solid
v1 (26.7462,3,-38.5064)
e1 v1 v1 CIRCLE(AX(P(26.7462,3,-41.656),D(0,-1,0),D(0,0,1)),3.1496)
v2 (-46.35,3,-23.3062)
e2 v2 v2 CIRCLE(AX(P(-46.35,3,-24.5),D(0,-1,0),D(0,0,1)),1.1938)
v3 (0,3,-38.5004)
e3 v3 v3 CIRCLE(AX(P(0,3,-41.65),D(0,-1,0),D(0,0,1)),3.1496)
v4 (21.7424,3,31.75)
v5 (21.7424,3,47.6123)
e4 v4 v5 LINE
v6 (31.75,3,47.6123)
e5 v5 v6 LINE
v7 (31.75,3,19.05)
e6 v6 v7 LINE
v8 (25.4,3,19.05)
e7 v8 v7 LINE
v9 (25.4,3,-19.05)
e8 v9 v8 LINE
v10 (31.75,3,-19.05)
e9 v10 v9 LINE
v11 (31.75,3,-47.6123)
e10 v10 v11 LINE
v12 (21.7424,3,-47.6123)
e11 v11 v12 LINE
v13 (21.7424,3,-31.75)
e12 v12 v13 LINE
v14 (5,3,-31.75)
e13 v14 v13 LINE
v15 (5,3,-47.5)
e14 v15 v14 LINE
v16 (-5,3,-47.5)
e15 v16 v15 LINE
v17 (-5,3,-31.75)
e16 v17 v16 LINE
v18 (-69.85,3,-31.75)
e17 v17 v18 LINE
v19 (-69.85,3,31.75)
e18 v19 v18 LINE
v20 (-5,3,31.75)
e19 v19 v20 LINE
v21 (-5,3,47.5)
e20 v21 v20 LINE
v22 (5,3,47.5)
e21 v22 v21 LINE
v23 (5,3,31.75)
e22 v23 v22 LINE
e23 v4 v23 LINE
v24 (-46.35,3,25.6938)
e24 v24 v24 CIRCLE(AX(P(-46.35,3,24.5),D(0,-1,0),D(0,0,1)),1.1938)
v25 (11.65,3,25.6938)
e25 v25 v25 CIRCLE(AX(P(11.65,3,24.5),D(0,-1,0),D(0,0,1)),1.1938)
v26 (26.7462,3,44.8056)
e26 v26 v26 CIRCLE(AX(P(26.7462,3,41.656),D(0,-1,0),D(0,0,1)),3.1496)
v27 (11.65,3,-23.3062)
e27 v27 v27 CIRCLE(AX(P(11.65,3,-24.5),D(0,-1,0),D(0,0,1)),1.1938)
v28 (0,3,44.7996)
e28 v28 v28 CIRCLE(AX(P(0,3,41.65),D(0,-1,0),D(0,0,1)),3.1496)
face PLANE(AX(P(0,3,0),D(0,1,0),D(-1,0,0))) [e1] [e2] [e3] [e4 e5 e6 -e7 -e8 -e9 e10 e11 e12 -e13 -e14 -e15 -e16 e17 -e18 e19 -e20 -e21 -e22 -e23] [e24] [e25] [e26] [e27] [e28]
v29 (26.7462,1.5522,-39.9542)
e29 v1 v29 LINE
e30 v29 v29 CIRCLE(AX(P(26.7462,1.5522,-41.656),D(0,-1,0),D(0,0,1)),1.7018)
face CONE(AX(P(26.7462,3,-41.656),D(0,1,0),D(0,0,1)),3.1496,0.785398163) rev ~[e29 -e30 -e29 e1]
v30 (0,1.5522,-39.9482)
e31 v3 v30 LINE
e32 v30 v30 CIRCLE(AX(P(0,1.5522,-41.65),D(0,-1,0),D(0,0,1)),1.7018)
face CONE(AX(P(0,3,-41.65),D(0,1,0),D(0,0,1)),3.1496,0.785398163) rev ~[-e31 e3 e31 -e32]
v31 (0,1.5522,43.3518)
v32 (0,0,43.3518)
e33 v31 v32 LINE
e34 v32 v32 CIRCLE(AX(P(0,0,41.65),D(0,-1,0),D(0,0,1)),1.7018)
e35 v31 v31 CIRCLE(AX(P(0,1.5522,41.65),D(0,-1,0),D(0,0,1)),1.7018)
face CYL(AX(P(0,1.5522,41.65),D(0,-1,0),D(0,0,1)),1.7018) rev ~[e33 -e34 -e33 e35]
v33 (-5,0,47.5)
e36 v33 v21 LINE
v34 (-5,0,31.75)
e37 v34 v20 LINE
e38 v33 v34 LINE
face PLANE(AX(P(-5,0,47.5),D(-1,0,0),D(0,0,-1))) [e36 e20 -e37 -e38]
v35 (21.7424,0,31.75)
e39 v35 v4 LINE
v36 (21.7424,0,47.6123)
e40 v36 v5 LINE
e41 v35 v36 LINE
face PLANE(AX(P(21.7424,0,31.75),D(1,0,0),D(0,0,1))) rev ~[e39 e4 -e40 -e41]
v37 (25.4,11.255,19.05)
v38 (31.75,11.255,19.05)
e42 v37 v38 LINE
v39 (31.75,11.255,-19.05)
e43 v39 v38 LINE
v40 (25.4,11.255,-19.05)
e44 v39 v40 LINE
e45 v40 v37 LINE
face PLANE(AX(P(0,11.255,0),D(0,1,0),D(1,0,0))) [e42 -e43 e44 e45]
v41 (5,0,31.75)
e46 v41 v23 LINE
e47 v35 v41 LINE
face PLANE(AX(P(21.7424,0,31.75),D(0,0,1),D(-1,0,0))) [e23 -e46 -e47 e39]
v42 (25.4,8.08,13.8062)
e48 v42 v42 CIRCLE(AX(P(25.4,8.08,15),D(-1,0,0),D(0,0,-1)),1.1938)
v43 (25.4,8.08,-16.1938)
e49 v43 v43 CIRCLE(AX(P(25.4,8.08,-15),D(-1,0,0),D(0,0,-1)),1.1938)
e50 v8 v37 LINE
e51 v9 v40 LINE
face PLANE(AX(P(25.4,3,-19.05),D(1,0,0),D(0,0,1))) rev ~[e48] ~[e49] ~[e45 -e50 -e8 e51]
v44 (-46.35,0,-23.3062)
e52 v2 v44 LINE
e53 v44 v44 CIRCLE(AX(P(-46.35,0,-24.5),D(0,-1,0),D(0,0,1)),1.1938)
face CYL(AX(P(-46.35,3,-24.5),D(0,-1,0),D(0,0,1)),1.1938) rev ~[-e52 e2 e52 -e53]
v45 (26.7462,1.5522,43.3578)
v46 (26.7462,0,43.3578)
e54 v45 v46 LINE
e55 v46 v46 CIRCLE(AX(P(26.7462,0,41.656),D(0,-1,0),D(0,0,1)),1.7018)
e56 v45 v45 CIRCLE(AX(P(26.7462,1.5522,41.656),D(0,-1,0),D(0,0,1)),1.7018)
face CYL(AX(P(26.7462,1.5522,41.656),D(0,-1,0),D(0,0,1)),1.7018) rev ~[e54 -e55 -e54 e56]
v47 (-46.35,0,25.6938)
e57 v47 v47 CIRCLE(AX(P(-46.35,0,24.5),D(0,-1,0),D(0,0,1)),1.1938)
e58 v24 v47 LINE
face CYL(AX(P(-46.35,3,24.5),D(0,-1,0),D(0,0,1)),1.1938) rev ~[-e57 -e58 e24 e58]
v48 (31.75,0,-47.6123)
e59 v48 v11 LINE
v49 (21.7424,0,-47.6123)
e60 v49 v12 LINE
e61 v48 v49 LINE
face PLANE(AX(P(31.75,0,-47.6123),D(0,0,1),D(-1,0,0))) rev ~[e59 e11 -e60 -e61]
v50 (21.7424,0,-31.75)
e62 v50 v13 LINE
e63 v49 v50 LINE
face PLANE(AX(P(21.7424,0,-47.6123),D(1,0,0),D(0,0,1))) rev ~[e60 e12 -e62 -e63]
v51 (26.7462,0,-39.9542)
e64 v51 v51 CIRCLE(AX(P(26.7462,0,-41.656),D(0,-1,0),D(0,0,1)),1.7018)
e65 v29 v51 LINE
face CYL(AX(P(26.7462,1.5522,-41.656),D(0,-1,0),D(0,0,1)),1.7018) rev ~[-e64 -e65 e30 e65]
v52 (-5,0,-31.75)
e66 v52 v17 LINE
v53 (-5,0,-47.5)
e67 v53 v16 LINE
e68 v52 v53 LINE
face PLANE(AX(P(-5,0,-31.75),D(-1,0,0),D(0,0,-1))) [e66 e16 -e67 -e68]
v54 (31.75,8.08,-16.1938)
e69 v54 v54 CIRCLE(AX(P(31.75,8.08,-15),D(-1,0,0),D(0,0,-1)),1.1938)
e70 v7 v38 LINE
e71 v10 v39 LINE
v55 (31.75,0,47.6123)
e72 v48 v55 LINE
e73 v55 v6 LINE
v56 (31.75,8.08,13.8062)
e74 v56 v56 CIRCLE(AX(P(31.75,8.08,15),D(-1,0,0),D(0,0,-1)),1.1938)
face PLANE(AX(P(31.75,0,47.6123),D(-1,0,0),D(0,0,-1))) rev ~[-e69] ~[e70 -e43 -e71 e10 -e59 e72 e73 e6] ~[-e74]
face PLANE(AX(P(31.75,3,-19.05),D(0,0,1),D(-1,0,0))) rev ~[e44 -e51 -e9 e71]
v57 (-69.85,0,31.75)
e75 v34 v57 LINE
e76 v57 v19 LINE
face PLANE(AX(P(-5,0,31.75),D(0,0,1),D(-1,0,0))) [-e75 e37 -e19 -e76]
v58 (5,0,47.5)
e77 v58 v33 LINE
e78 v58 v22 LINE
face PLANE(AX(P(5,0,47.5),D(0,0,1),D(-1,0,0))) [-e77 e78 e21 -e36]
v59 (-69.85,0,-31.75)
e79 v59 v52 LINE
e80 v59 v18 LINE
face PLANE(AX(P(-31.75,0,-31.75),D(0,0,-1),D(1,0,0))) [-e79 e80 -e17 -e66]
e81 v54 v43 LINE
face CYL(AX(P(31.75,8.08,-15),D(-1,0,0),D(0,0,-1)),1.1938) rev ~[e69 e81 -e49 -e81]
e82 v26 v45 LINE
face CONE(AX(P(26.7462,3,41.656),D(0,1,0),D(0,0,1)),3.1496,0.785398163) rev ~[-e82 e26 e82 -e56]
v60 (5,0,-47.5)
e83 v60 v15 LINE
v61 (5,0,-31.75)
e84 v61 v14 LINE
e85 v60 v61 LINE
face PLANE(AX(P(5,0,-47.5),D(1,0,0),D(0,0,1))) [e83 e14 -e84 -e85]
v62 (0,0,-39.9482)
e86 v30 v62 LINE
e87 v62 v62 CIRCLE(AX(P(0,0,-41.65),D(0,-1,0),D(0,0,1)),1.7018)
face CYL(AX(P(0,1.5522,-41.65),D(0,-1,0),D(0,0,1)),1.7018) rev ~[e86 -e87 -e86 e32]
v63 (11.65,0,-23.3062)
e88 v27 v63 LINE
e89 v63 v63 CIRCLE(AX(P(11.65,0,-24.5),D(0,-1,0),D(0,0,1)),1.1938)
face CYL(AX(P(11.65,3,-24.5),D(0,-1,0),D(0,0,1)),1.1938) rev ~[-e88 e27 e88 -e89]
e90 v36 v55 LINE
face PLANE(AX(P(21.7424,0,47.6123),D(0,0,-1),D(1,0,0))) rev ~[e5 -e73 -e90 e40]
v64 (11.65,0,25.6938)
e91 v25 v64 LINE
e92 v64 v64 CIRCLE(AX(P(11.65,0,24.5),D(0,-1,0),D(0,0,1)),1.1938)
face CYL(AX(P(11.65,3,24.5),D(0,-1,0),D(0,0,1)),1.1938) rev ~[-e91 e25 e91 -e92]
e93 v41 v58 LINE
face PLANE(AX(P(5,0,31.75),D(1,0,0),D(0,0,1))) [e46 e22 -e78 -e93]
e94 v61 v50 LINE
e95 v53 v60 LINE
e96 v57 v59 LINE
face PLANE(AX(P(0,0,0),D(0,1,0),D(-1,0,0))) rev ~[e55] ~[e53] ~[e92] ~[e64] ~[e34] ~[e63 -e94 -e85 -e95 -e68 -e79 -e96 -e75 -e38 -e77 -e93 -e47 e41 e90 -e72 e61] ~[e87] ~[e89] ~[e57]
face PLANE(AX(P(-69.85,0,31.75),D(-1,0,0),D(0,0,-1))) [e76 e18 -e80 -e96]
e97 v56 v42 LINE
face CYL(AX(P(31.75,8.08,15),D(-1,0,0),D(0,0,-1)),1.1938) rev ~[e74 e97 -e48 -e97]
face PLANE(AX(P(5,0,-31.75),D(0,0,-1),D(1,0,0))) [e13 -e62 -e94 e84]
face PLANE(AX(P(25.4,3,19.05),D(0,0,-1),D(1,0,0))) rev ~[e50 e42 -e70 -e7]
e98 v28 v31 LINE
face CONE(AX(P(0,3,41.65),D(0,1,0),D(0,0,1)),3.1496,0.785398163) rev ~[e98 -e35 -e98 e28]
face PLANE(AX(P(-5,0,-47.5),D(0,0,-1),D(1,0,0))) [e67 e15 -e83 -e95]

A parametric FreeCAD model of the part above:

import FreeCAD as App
import Part
import Sketcher
Q = App.Units.Quantity

doc = App.newDocument("Part")
params = doc.addObject("Spreadsheet::Sheet", "Params")
for row, (alias, value) in enumerate([
    ("sketch1_height", "2.5 in"),
    ("sketch1_height2", "3.749 in"),
    ("sketch1_width", "0.394 in"),
    ("pad1_length", "0.1181102 in"),
    ("sketch2_diameter", "0.134 in"),
    ("hole_diameter", "0.134 in"),
    ("hole_csink_diameter", "0.248 in"),
    ("sketch3_height", "1.5 in"),
    ("sketch3_width", "0.25 in"),
    ("pad2_length", "0.325 in"),
    ("sketch4_diameter", "0.094 in"),
    ("hole2_diameter", "0.094 in"),
    ("sketch5_diameter", "0.094 in"),
    ("hole3_diameter", "0.094 in"),
], start=1):
    params.set(f"A{row}", alias)
    params.set(f"B{row}", "=" + value)
    params.setAlias(f"B{row}", alias)

body = doc.addObject("PartDesign::Body", "Body")

sketch1 = body.newObject("Sketcher::SketchObject", "Sketch")
sketch1.AttachmentSupport = (doc.getObject("XZ_Plane"), [""])
sketch1.MapMode = "FlatFace"
sketch1.addGeometry([
    Part.LineSegment(App.Vector(-5, 47.5, 0), App.Vector(5, 47.5, 0)),
    Part.LineSegment(App.Vector(5, 47.5, 0), App.Vector(5, 31.75, 0)),
    Part.LineSegment(App.Vector(5, 31.75, 0), App.Vector(21.7424, 31.75, 0)),
    Part.LineSegment(App.Vector(21.7424, 31.75, 0), App.Vector(21.7424, 47.6123, 0)),
    Part.LineSegment(App.Vector(21.7424, 47.6123, 0), App.Vector(31.75, 47.6123, 0)),
    Part.LineSegment(App.Vector(31.75, 47.6123, 0), App.Vector(31.75, -47.6123, 0)),
    Part.LineSegment(App.Vector(31.75, -47.6123, 0), App.Vector(21.7424, -47.6123, 0)),
    Part.LineSegment(App.Vector(21.7424, -47.6123, 0), App.Vector(21.7424, -31.75, 0)),
    Part.LineSegment(App.Vector(21.7424, -31.75, 0), App.Vector(5, -31.75, 0)),
    Part.LineSegment(App.Vector(5, -31.75, 0), App.Vector(5, -47.5, 0)),
    Part.LineSegment(App.Vector(5, -47.5, 0), App.Vector(-5, -47.5, 0)),
    Part.LineSegment(App.Vector(-5, -47.5, 0), App.Vector(-5, -31.75, 0)),
    Part.LineSegment(App.Vector(-5, -31.75, 0), App.Vector(-69.85, -31.75, 0)),
    Part.LineSegment(App.Vector(-69.85, -31.75, 0), App.Vector(-69.85, 31.75, 0)),
    Part.LineSegment(App.Vector(-69.85, 31.75, 0), App.Vector(-5, 31.75, 0)),
    Part.LineSegment(App.Vector(-5, 31.75, 0), App.Vector(-5, 47.5, 0)),
], False)
sketch1.addConstraint([
    Sketcher.Constraint("Coincident", 0, 2, 1, 1),
    Sketcher.Constraint("Coincident", 1, 2, 2, 1),
    Sketcher.Constraint("Coincident", 2, 2, 3, 1),
    Sketcher.Constraint("Coincident", 3, 2, 4, 1),
    Sketcher.Constraint("Coincident", 4, 2, 5, 1),
    Sketcher.Constraint("Coincident", 5, 2, 6, 1),
    Sketcher.Constraint("Coincident", 6, 2, 7, 1),
    Sketcher.Constraint("Coincident", 7, 2, 8, 1),
    Sketcher.Constraint("Coincident", 8, 2, 9, 1),
    Sketcher.Constraint("Coincident", 9, 2, 10, 1),
    Sketcher.Constraint("Coincident", 10, 2, 11, 1),
    Sketcher.Constraint("Coincident", 11, 2, 12, 1),
    Sketcher.Constraint("Coincident", 12, 2, 13, 1),
    Sketcher.Constraint("Coincident", 13, 2, 14, 1),
    Sketcher.Constraint("Coincident", 14, 2, 15, 1),
    Sketcher.Constraint("Coincident", 15, 2, 0, 1),
    Sketcher.Constraint("Horizontal", 0),
    Sketcher.Constraint("Vertical", 1),
    Sketcher.Constraint("Horizontal", 2),
    Sketcher.Constraint("Vertical", 3),
    Sketcher.Constraint("Horizontal", 4),
    Sketcher.Constraint("Vertical", 5),
    Sketcher.Constraint("Horizontal", 6),
    Sketcher.Constraint("Vertical", 7),
    Sketcher.Constraint("Horizontal", 8),
    Sketcher.Constraint("Vertical", 9),
    Sketcher.Constraint("Horizontal", 10),
    Sketcher.Constraint("Vertical", 11),
    Sketcher.Constraint("Horizontal", 12),
    Sketcher.Constraint("Vertical", 13),
    Sketcher.Constraint("Horizontal", 14),
    Sketcher.Constraint("Vertical", 15),
    Sketcher.Constraint("Symmetric", 0, 2, 10, 2, -1, 1),
    Sketcher.Constraint("Symmetric", 8, 2, 14, 2, -1, 1),
    Sketcher.Constraint("Symmetric", 8, 2, 11, 2, -2),
    Sketcher.Constraint("Symmetric", 3, 2, 6, 2, -1),
    Sketcher.Constraint("Horizontal", 2, 2, 13, 2),
    Sketcher.Constraint("DistanceY", 13, 1, 13, 2, Q("2.5 in")),
    Sketcher.Constraint("DistanceY", 5, 2, 5, 1, Q("3.749 in")),
    Sketcher.Constraint("DistanceX", 0, 1, 0, 2, Q("0.3937 in")),
    Sketcher.Constraint("DistanceX", 4, 1, 4, 2, Q("0.394 in")),
    Sketcher.Constraint("DistanceX", -1, 1, 4, 2, Q("1.25 in")),
    Sketcher.Constraint("DistanceX", 12, 2, -1, 1, Q("2.75 in")),
    Sketcher.Constraint("DistanceY", 1, 2, 1, 1, Q("15.75 mm")),
])
sketch1.setExpression("Constraints[37]", "Params.sketch1_height")
sketch1.setExpression("Constraints[38]", "Params.sketch1_height2")
sketch1.setExpression("Constraints[40]", "Params.sketch1_width")
pad1 = body.newObject("PartDesign::Pad", "Pad")
pad1.Profile = sketch1
pad1.setExpression("Length", "Params.pad1_length")
pad1.Reversed = True

sketch2 = body.newObject("Sketcher::SketchObject", "Sketch001")
sketch2.AttachmentSupport = (doc.getObject("XZ_Plane"), [""])
sketch2.MapMode = "FlatFace"
sketch2.AttachmentOffset = App.Placement(App.Vector(0, 0, -0.1181102 * 25.4), App.Rotation())
sketch2.addGeometry([
    Part.Circle(App.Vector(0, 41.65, 0), App.Vector(0, 0, 1), 1.7018),
    Part.Circle(App.Vector(0, -41.65, 0), App.Vector(0, 0, 1), 1.7018),
    Part.Circle(App.Vector(26.7462, 41.656, 0), App.Vector(0, 0, 1), 1.7018),
    Part.Circle(App.Vector(26.7462, -41.656, 0), App.Vector(0, 0, 1), 1.7018),
], False)
sketch2.addConstraint([
    Sketcher.Constraint("Equal", 0, 1),
    Sketcher.Constraint("Equal", 1, 2),
    Sketcher.Constraint("Equal", 2, 3),
    Sketcher.Constraint("Symmetric", 0, 3, 1, 3, -1, 1),
    Sketcher.Constraint("Symmetric", 2, 3, 3, 3, -1),
    Sketcher.Constraint("PointOnObject", 0, 3, -2),
    Sketcher.Constraint("Diameter", 0, Q("0.134 in")),
    Sketcher.Constraint("DistanceY", -1, 1, 2, 3, Q("1.64 in")),
    Sketcher.Constraint("DistanceX", -1, 1, 2, 3, Q("1.053 in")),
    Sketcher.Constraint("DistanceY", -1, 1, 0, 3, Q("41.65 mm")),
])
sketch2.setExpression("Constraints[6]", "Params.sketch2_diameter")
doc.recompute()
hole = body.newObject("PartDesign::Hole", "Hole")
hole.Profile = sketch2
hole.ThreadType = "None"
hole.setExpression("Diameter", "Params.hole_diameter")
hole.DepthType = "ThroughAll"
hole.HoleCutType = "Countersink"
hole.setExpression("HoleCutDiameter", "Params.hole_csink_diameter")
hole.HoleCutCountersinkAngle = 90
hole.Reversed = True

sketch3 = body.newObject("Sketcher::SketchObject", "Sketch002")
sketch3.AttachmentSupport = (doc.getObject("XZ_Plane"), [""])
sketch3.MapMode = "FlatFace"
sketch3.AttachmentOffset = App.Placement(App.Vector(0, 0, -0.1181102 * 25.4), App.Rotation())
sketch3.addGeometry([
    Part.LineSegment(App.Vector(25.4, 19.05, 0), App.Vector(31.75, 19.05, 0)),
    Part.LineSegment(App.Vector(31.75, 19.05, 0), App.Vector(31.75, -19.05, 0)),
    Part.LineSegment(App.Vector(31.75, -19.05, 0), App.Vector(25.4, -19.05, 0)),
    Part.LineSegment(App.Vector(25.4, -19.05, 0), App.Vector(25.4, 19.05, 0)),
], False)
sketch3.addConstraint([
    Sketcher.Constraint("Coincident", 0, 2, 1, 1),
    Sketcher.Constraint("Coincident", 1, 2, 2, 1),
    Sketcher.Constraint("Coincident", 2, 2, 3, 1),
    Sketcher.Constraint("Coincident", 3, 2, 0, 1),
    Sketcher.Constraint("Horizontal", 0),
    Sketcher.Constraint("Vertical", 1),
    Sketcher.Constraint("Horizontal", 2),
    Sketcher.Constraint("Vertical", 3),
    Sketcher.Constraint("DistanceY", 1, 2, 1, 1, Q("1.5 in")),
    Sketcher.Constraint("DistanceX", -1, 1, 2, 2, Q("1 in")),
    Sketcher.Constraint("DistanceX", 0, 1, 0, 2, Q("0.25 in")),
    Sketcher.Constraint("DistanceY", -1, 1, 0, 2, Q("0.75 in")),
])
sketch3.setExpression("Constraints[8]", "Params.sketch3_height")
sketch3.setExpression("Constraints[10]", "Params.sketch3_width")
pad2 = body.newObject("PartDesign::Pad", "Pad001")
pad2.Profile = sketch3
pad2.setExpression("Length", "Params.pad2_length")
pad2.Reversed = True

sketch4 = body.newObject("Sketcher::SketchObject", "Sketch003")
sketch4.AttachmentSupport = (doc.getObject("YZ_Plane"), [""])
sketch4.MapMode = "FlatFace"
sketch4.AttachmentOffset = App.Placement(App.Vector(0, 0, 1.25 * 25.4), App.Rotation())
sketch4.addGeometry([
    Part.Circle(App.Vector(8.08, 15, 0), App.Vector(0, 0, 1), 1.1938),
    Part.Circle(App.Vector(8.08, -15, 0), App.Vector(0, 0, 1), 1.1938),
], False)
sketch4.addConstraint([
    Sketcher.Constraint("Equal", 0, 1),
    Sketcher.Constraint("Symmetric", 0, 3, 1, 3, -1),
    Sketcher.Constraint("Diameter", 0, Q("0.094 in")),
    Sketcher.Constraint("DistanceX", -1, 1, 0, 3, Q("0.3181 in")),
    Sketcher.Constraint("DistanceY", 1, 3, 0, 3, Q("1.1811 in")),
])
sketch4.setExpression("Constraints[2]", "Params.sketch4_diameter")
doc.recompute()
hole2 = body.newObject("PartDesign::Hole", "Hole001")
hole2.Profile = sketch4
hole2.ThreadType = "None"
hole2.setExpression("Diameter", "Params.hole2_diameter")
hole2.DepthType = "ThroughAll"

sketch5 = body.newObject("Sketcher::SketchObject", "Sketch004")
sketch5.AttachmentSupport = (doc.getObject("XZ_Plane"), [""])
sketch5.MapMode = "FlatFace"
sketch5.AttachmentOffset = App.Placement(App.Vector(0, 0, -0.1181102 * 25.4), App.Rotation())
sketch5.addGeometry([
    Part.Circle(App.Vector(11.65, 24.5, 0), App.Vector(0, 0, 1), 1.1938),
    Part.Circle(App.Vector(11.65, -24.5, 0), App.Vector(0, 0, 1), 1.1938),
    Part.Circle(App.Vector(-46.35, -24.5, 0), App.Vector(0, 0, 1), 1.1938),
    Part.Circle(App.Vector(-46.35, 24.5, 0), App.Vector(0, 0, 1), 1.1938),
], False)
sketch5.addConstraint([
    Sketcher.Constraint("Equal", 0, 1),
    Sketcher.Constraint("Equal", 1, 2),
    Sketcher.Constraint("Equal", 2, 3),
    Sketcher.Constraint("Symmetric", 0, 3, 1, 3, -1),
    Sketcher.Constraint("Symmetric", 2, 3, 3, 3, -1),
    Sketcher.Constraint("Horizontal", 1, 3, 2, 3),
    Sketcher.Constraint("Diameter", 0, Q("0.094 in")),
    Sketcher.Constraint("DistanceX", 2, 3, -1, 1, Q("1.8248 in")),
    Sketcher.Constraint("DistanceX", -1, 1, 0, 3, Q("11.65 mm")),
    Sketcher.Constraint("DistanceY", -1, 1, 0, 3, Q("24.5 mm")),
])
sketch5.setExpression("Constraints[6]", "Params.sketch5_diameter")
doc.recompute()
hole3 = body.newObject("PartDesign::Hole", "Hole002")
hole3.Profile = sketch5
hole3.ThreadType = "None"
hole3.setExpression("Diameter", "Params.hole3_diameter")
hole3.DepthType = "ThroughAll"
hole3.Reversed = True

doc.recompute()
